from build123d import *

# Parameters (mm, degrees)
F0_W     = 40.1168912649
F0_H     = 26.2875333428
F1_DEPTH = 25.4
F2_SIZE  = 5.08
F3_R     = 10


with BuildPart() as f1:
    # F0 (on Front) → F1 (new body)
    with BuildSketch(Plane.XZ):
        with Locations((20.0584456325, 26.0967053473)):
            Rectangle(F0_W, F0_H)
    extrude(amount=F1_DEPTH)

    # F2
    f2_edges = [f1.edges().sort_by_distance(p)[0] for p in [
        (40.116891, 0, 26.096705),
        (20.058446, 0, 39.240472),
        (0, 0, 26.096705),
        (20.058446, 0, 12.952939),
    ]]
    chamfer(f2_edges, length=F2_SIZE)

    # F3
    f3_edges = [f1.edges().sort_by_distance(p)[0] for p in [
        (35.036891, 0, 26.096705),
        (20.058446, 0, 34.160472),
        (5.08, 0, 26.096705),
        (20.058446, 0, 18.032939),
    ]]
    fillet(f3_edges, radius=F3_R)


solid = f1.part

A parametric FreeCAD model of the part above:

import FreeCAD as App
import Part
import Sketcher
from FreeCAD import Vector
Q = App.Units.Quantity


def edges_at(feature, points):
    """Names of the edges that pass closest to the given points."""
    edges = feature.Shape.Edges
    near = lambda p: min(range(len(edges)), key=lambda i: edges[i].distToShape(Part.Vertex(*p))[0])
    return sorted({f"Edge{near(p) + 1}" for p in points})

doc = App.newDocument("Part")
body = doc.addObject("PartDesign::Body", "Body")

# Sketch on XZ plane
sketch1 = body.newObject("Sketcher::SketchObject", "Sketch")
sketch1.AttachmentSupport = (doc.getObject("XZ_Plane"), [""])
sketch1.MapMode = "FlatFace"
sketch1.addGeometry([
    Part.LineSegment(Vector(0, 39, 0), Vector(0, 13, 0)),
    Part.LineSegment(Vector(0, 13, 0), Vector(40, 13, 0)),
    Part.LineSegment(Vector(40, 13, 0), Vector(40, 39, 0)),
    Part.LineSegment(Vector(40, 39, 0), Vector(0, 39, 0)),
], False)
sketch1.addConstraint([
    Sketcher.Constraint("Coincident", 0, 2, 1, 1),
    Sketcher.Constraint("Coincident", 1, 2, 2, 1),
    Sketcher.Constraint("Coincident", 2, 2, 3, 1),
    Sketcher.Constraint("Coincident", 3, 2, 0, 1),
    Sketcher.Constraint("Vertical", 0),
    Sketcher.Constraint("Horizontal", 1),
    Sketcher.Constraint("Vertical", 2),
    Sketcher.Constraint("Horizontal", 3),
    Sketcher.Constraint("PointOnObject", 0, 2, -2),
    Sketcher.Constraint("DistanceX", 1, 1, 1, 2, 40.116891),
    Sketcher.Constraint("DistanceY", 0, 2, 0, 1, 26.287533),
    Sketcher.Constraint("DistanceY", -1, 1, 0, 2, 12.952939),
])
pad1 = body.newObject("PartDesign::Pad", "Pad")
pad1.Profile = sketch1
pad1.Length = Q("1 in")
doc.recompute()

chamfer = body.newObject("PartDesign::Chamfer", "Chamfer")
chamfer.Base = (pad1, edges_at(pad1, [
    (40.117, 0, 26.097),
    (20.058, 0, 39.24),
    (0, 0, 26.097),
    (20.058, 0, 12.953),
]))
chamfer.Size = Q("0.2 in")
doc.recompute()

fillet = body.newObject("PartDesign::Fillet", "Fillet")
fillet.Base = (chamfer, edges_at(chamfer, [
    (35.037, 0, 26.097),
    (20.058, 0, 34.16),
    (5.08, 0, 26.097),
    (20.058, 0, 18.033),
]))
fillet.Radius = 10

doc.recompute()
